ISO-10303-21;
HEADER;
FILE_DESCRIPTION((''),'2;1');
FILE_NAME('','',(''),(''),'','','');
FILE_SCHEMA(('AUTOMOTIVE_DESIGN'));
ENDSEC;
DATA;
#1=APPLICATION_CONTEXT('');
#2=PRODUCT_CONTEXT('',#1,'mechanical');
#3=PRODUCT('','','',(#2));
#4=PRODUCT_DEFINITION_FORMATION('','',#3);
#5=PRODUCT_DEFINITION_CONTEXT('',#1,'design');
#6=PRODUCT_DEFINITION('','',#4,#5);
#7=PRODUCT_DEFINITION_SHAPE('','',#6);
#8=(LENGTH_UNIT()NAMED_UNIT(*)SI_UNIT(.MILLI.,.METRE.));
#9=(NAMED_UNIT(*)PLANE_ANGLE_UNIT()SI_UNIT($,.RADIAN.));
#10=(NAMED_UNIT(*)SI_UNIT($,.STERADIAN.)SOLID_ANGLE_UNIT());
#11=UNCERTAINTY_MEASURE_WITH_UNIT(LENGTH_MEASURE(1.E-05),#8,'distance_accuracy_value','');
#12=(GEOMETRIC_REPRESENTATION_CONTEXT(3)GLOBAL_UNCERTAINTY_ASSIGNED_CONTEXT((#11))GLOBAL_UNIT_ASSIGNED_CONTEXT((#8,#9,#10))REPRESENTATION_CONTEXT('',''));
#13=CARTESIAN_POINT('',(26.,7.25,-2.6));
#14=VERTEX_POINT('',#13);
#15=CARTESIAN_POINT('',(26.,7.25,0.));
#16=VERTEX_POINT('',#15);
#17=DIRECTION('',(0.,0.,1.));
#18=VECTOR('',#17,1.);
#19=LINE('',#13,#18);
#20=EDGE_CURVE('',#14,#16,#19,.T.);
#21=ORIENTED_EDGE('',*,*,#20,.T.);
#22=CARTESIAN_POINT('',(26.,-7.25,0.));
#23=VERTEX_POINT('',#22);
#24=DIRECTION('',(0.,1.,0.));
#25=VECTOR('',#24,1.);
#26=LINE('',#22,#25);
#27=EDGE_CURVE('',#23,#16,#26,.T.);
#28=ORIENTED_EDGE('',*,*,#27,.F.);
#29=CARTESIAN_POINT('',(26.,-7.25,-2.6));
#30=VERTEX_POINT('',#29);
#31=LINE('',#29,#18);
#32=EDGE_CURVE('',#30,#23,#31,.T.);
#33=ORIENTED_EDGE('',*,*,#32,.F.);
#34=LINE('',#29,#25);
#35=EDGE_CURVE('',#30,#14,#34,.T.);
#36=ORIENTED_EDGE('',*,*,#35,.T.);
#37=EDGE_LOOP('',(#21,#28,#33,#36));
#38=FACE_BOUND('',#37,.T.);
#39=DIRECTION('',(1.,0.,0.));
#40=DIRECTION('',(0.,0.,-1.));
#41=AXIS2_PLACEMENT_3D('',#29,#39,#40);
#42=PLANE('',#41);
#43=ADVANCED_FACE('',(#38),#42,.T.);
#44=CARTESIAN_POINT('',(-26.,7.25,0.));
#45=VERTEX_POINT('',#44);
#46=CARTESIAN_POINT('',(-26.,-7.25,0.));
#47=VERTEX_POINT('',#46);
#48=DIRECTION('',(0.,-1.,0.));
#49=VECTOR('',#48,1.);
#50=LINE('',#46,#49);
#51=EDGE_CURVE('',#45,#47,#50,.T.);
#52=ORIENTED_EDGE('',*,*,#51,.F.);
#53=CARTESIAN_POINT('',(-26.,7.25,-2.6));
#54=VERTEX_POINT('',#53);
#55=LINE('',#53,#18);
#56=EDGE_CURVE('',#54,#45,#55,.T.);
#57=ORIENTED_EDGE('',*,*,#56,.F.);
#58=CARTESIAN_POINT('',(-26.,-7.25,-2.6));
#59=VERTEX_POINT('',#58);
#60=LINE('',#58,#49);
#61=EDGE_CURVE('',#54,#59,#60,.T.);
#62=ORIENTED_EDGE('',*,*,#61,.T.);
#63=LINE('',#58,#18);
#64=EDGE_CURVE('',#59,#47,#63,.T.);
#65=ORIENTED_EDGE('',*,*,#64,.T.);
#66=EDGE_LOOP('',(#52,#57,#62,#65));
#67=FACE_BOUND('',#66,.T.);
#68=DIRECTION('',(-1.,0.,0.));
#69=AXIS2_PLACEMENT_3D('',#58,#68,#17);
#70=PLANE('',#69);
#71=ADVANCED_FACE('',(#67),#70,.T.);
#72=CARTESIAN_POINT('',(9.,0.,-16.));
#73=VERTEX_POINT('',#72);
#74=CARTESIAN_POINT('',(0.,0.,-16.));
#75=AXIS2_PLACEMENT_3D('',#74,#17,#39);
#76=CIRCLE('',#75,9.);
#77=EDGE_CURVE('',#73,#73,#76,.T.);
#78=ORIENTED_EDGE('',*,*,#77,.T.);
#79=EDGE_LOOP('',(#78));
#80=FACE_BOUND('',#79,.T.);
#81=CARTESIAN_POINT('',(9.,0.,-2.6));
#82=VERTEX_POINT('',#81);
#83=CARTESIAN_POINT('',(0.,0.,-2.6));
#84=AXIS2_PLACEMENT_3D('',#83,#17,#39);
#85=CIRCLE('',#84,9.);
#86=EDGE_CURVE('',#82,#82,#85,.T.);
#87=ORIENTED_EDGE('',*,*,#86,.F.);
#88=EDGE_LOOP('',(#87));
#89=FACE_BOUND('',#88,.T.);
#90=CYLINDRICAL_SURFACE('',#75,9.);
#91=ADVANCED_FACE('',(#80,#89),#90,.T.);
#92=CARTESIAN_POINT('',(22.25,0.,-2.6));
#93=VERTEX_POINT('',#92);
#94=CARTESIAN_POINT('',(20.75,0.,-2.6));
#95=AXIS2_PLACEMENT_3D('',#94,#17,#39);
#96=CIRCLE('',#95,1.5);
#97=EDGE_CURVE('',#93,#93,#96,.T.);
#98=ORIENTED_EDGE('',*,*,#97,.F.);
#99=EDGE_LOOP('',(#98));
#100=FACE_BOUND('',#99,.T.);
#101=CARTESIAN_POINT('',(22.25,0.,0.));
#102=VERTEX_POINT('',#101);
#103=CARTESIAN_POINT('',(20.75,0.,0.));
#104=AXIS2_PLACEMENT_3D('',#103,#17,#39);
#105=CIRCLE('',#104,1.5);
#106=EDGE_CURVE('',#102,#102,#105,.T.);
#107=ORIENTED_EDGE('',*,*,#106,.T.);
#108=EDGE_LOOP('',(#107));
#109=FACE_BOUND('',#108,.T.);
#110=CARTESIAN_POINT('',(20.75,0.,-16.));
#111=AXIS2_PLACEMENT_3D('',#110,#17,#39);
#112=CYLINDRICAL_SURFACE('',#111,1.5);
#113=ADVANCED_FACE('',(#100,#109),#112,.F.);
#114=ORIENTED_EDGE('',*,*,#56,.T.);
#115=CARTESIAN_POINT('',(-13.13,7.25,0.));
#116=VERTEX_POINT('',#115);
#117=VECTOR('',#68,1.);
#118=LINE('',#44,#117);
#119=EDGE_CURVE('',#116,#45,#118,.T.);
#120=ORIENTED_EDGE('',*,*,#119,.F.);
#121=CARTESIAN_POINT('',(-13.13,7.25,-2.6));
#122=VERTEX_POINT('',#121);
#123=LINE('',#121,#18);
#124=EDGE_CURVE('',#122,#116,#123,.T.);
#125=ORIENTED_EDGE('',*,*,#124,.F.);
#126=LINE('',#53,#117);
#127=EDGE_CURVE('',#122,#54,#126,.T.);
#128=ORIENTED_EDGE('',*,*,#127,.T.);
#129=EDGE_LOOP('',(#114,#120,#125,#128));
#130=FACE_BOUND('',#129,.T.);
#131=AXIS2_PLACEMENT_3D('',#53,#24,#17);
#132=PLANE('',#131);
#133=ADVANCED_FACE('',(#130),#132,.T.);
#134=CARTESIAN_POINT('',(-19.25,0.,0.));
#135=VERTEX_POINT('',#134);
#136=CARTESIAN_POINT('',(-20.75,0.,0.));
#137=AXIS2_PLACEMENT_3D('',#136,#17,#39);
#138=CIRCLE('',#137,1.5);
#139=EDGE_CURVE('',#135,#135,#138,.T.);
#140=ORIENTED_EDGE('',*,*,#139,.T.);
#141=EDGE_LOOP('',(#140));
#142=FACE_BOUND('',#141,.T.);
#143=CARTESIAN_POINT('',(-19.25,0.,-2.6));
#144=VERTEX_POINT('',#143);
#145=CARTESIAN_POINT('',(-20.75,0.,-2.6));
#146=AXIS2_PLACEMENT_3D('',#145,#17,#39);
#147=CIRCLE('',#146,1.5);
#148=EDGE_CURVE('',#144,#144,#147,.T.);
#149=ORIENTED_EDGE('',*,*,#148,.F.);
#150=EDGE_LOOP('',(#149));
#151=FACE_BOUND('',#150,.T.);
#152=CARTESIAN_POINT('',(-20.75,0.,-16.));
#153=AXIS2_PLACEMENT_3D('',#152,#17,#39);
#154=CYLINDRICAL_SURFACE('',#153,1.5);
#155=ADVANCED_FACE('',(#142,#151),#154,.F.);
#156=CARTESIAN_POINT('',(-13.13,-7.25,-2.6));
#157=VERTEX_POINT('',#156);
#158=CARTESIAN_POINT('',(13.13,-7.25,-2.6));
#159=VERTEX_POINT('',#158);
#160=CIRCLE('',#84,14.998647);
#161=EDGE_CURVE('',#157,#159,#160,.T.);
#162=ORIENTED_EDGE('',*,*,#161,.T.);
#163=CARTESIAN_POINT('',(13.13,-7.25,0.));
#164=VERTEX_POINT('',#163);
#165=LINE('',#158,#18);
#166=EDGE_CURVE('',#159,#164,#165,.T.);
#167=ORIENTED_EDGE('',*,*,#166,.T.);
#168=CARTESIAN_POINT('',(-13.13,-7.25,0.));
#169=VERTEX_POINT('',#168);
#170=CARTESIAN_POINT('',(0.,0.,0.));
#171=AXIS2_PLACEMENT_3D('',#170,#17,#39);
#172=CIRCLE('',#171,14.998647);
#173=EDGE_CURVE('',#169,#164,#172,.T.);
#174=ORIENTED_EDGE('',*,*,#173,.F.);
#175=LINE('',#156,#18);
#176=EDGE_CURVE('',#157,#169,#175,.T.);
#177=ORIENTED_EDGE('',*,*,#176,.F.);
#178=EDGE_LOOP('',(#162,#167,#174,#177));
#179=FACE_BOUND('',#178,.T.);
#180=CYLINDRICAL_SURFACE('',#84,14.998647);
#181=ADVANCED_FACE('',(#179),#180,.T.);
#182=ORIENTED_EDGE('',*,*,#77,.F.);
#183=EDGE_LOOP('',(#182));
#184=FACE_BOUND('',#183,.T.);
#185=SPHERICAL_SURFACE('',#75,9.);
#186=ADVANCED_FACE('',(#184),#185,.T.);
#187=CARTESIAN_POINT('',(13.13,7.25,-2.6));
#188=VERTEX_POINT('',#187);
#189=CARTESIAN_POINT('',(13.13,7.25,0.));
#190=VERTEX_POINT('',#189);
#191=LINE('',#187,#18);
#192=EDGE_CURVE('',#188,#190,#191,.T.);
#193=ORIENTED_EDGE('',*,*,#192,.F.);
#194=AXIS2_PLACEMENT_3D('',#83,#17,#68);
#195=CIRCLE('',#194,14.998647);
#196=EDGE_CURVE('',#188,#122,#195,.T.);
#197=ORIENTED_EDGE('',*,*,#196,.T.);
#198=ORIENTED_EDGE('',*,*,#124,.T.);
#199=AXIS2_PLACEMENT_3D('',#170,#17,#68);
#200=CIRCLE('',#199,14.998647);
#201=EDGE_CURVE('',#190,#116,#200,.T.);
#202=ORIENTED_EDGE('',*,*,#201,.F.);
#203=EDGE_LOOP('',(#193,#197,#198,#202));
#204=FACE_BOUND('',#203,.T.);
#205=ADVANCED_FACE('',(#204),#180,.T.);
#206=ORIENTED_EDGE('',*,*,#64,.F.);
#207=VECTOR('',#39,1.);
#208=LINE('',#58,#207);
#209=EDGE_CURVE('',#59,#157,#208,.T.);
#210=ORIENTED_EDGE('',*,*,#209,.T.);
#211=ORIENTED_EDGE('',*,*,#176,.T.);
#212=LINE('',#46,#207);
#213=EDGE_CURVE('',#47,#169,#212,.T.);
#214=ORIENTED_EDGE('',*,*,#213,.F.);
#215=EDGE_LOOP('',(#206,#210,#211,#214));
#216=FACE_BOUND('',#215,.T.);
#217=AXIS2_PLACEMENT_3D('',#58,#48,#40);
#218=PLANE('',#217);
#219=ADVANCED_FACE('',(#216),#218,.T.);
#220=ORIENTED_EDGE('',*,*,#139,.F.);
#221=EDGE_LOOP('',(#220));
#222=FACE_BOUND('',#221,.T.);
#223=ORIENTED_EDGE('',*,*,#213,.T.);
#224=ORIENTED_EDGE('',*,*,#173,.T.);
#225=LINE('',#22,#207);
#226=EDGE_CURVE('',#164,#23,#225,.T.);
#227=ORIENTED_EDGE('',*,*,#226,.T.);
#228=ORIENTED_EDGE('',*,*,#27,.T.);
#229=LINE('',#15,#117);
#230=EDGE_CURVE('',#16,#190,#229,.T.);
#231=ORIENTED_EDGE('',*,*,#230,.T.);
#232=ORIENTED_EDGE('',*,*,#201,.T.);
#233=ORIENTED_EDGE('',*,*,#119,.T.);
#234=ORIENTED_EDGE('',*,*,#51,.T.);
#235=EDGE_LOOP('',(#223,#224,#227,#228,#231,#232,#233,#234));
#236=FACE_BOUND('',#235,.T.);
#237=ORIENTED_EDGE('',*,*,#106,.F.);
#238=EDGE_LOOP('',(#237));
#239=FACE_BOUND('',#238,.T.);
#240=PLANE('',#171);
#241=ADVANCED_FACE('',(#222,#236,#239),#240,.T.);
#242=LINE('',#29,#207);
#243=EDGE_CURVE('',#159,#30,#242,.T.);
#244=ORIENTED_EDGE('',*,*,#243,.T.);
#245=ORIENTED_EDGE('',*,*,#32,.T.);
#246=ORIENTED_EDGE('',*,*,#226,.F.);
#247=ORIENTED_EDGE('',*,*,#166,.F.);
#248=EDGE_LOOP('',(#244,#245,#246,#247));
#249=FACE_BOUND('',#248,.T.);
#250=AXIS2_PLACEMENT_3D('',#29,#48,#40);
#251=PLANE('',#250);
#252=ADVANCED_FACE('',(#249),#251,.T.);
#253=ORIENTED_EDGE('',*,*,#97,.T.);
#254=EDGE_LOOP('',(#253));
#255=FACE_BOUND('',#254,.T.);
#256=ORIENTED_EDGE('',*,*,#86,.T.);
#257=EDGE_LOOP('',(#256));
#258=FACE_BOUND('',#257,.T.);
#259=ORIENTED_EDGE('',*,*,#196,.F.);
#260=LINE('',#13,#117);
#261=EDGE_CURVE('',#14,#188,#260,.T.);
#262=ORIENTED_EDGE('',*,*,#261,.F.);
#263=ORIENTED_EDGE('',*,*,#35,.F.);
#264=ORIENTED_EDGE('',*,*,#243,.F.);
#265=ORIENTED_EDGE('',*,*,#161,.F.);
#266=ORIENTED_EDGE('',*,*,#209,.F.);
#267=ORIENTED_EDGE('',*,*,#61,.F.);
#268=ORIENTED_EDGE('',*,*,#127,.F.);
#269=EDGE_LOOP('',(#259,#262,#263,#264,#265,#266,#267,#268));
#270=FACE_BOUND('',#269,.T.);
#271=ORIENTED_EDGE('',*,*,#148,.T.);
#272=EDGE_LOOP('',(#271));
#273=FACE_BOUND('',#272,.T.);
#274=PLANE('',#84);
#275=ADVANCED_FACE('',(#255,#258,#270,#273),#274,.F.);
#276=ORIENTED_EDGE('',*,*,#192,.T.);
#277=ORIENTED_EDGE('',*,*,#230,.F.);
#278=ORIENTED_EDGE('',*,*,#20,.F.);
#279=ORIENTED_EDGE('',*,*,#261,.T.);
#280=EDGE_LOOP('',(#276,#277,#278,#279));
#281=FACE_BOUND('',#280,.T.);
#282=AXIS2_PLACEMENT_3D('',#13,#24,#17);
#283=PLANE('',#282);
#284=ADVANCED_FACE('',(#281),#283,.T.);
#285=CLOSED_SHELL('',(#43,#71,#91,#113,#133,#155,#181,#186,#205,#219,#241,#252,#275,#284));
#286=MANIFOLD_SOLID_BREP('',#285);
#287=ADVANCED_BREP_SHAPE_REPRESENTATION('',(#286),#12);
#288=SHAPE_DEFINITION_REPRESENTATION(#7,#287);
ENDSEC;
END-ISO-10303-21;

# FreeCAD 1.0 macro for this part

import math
import FreeCAD as App
import Part
import Sketcher
Q = App.Units.Quantity

doc = App.newDocument("Part")
params = doc.addObject("Spreadsheet::Sheet", "Params")
for row, (alias, value) in enumerate([
    ("sketch1_height", "14.5 mm"),
    ("sketch1_width", "12.87 mm"),
    ("pad1_length", "2.6 mm"),
    ("sketch2_diameter", "18 mm"),
    ("pad2_length", "16 mm"),
    ("sketch3_radius", "9 mm"),
    ("revolution_angle", "180 deg"),
    ("sketch4_diameter", "3 mm"),
    ("pocket1_length", "16 mm"),
], start=1):
    params.set(f"A{row}", alias)
    params.set(f"B{row}", "=" + value)
    params.setAlias(f"B{row}", alias)

body = doc.addObject("PartDesign::Body", "Body")

# Sketch on XY plane
sketch1 = body.newObject("Sketcher::SketchObject", "Sketch")
sketch1.AttachmentSupport = (doc.getObject("XY_Plane"), [""])
sketch1.MapMode = "FlatFace"
sketch1.addGeometry([
    Part.LineSegment(App.Vector(-26, 7, 0), App.Vector(-26, -7, 0)),  # 0
    Part.LineSegment(App.Vector(-26, -7, 0), App.Vector(-13, -7, 0)),  # 1
    Part.ArcOfCircle(Part.Circle(App.Vector(0, 0, 0), App.Vector(0, 0, 1), 15), math.radians(-151), math.radians(-29)),  # 2
    Part.LineSegment(App.Vector(13, -7, 0), App.Vector(26, -7, 0)),  # 3
    Part.LineSegment(App.Vector(26, -7, 0), App.Vector(26, 7, 0)),  # 4
    Part.LineSegment(App.Vector(26, 7, 0), App.Vector(13, 7, 0)),  # 5
    Part.ArcOfCircle(Part.Circle(App.Vector(0, 0, 0), App.Vector(0, 0, 1), 15), math.radians(29), math.radians(151)),  # 6
    Part.LineSegment(App.Vector(-13, 7, 0), App.Vector(-26, 7, 0)),  # 7
], False)
sketch1.addConstraint([
    Sketcher.Constraint("Coincident", 0, 2, 1, 1),
    Sketcher.Constraint("Coincident", 1, 2, 2, 1),
    Sketcher.Constraint("Coincident", 2, 2, 3, 1),
    Sketcher.Constraint("Coincident", 3, 2, 4, 1),
    Sketcher.Constraint("Coincident", 4, 2, 5, 1),
    Sketcher.Constraint("Coincident", 5, 2, 6, 1),
    Sketcher.Constraint("Coincident", 6, 2, 7, 1),
    Sketcher.Constraint("Coincident", 7, 2, 0, 1),
    Sketcher.Constraint("Vertical", 0),
    Sketcher.Constraint("Horizontal", 1),
    Sketcher.Constraint("Horizontal", 3),
    Sketcher.Constraint("Vertical", 4),
    Sketcher.Constraint("Horizontal", 5),
    Sketcher.Constraint("Horizontal", 7),
    Sketcher.Constraint("Coincident", 2, 3, -1, 1),
    Sketcher.Constraint("Coincident", 6, 3, -1, 1),
    Sketcher.Constraint("Equal", 2, 6),
    Sketcher.Constraint("Symmetric", 0, 2, 4, 2, -1, 1),
    Sketcher.Constraint("Horizontal", 1, 2, 2, 2),
    Sketcher.Constraint("Horizontal", 5, 2, 6, 2),
    Sketcher.Constraint("DistanceY", 0, 2, 0, 1, Q("14.5 mm")),
    Sketcher.Constraint("DistanceX", 0, 2, -1, 1, Q("26 mm")),
    Sketcher.Constraint("DistanceX", 1, 1, 1, 2, Q("12.87 mm")),
])
sketch1.setExpression("Constraints[20]", "Params.sketch1_height")
sketch1.setExpression("Constraints[22]", "Params.sketch1_width")
pad1 = body.newObject("PartDesign::Pad", "Pad")
pad1.Profile = sketch1
pad1.setExpression("Length", "Params.pad1_length")
pad1.Reversed = True

# Sketch on XY plane
sketch2 = body.newObject("Sketcher::SketchObject", "Sketch001")
sketch2.AttachmentSupport = (doc.getObject("XY_Plane"), [""])
sketch2.MapMode = "FlatFace"
sketch2.addGeometry(Part.Circle(App.Vector(0, 0, 0), App.Vector(0, 0, 1), 9), False)
sketch2.addConstraint([
    Sketcher.Constraint("Coincident", 0, 3, -1, 1),
    Sketcher.Constraint("Diameter", 0, Q("18 mm")),
])
sketch2.setExpression("Constraints[1]", "Params.sketch2_diameter")
pad2 = body.newObject("PartDesign::Pad", "Pad001")
pad2.Profile = sketch2
pad2.setExpression("Length", "Params.pad2_length")
pad2.Reversed = True

# Sketch on XY plane
sketch3 = body.newObject("Sketcher::SketchObject", "Sketch002")
sketch3.AttachmentSupport = (doc.getObject("XY_Plane"), [""])
sketch3.MapMode = "FlatFace"
sketch3.AttachmentOffset = App.Placement(App.Vector(0, 0, -16), App.Rotation())
sketch3.addGeometry([
    Part.LineSegment(App.Vector(9, 0, 0), App.Vector(-9, 0, 0)),
    Part.ArcOfCircle(Part.Circle(App.Vector(0, 0, 0), App.Vector(0, 0, 1), 9), math.radians(0), math.radians(180)),
], False)
sketch3.addConstraint([
    Sketcher.Constraint("Coincident", 0, 1, 1, 1),
    Sketcher.Constraint("Coincident", 1, 2, 0, 2),
    Sketcher.Constraint("Horizontal", 0),
    Sketcher.Constraint("Coincident", 1, 3, -1, 1),
    Sketcher.Constraint("PointOnObject", 0, 1, -1),
    Sketcher.Constraint("Radius", 1, Q("9 mm")),
])
sketch3.setExpression("Constraints[5]", "Params.sketch3_radius")
revolution = body.newObject("PartDesign::Revolution", "Revolution")
revolution.Profile = sketch3
revolution.ReferenceAxis = (sketch3, ["H_Axis"])
revolution.setExpression("Angle", "Params.revolution_angle")
revolution.Reversed = True

# Sketch on XY plane
sketch4 = body.newObject("Sketcher::SketchObject", "Sketch003")
sketch4.AttachmentSupport = (doc.getObject("XY_Plane"), [""])
sketch4.MapMode = "FlatFace"
sketch4.addGeometry([
    Part.Circle(App.Vector(-20.8, 0, 0), App.Vector(0, 0, 1), 1.5),
    Part.Circle(App.Vector(20.8, 0, 0), App.Vector(0, 0, 1), 1.5),
], False)
sketch4.addConstraint([
    Sketcher.Constraint("Equal", 0, 1),
    Sketcher.Constraint("Symmetric", 0, 3, 1, 3, -1, 1),
    Sketcher.Constraint("PointOnObject", 0, 3, -1),
    Sketcher.Constraint("Diameter", 0, Q("3 mm")),
    Sketcher.Constraint("DistanceX", 0, 3, 1, 3, Q("41.5 mm")),
])
sketch4.setExpression("Constraints[3]", "Params.sketch4_diameter")
pocket1 = body.newObject("PartDesign::Pocket", "Pocket")
pocket1.Profile = sketch4
pocket1.setExpression("Length", "Params.pocket1_length")

doc.recompute()
